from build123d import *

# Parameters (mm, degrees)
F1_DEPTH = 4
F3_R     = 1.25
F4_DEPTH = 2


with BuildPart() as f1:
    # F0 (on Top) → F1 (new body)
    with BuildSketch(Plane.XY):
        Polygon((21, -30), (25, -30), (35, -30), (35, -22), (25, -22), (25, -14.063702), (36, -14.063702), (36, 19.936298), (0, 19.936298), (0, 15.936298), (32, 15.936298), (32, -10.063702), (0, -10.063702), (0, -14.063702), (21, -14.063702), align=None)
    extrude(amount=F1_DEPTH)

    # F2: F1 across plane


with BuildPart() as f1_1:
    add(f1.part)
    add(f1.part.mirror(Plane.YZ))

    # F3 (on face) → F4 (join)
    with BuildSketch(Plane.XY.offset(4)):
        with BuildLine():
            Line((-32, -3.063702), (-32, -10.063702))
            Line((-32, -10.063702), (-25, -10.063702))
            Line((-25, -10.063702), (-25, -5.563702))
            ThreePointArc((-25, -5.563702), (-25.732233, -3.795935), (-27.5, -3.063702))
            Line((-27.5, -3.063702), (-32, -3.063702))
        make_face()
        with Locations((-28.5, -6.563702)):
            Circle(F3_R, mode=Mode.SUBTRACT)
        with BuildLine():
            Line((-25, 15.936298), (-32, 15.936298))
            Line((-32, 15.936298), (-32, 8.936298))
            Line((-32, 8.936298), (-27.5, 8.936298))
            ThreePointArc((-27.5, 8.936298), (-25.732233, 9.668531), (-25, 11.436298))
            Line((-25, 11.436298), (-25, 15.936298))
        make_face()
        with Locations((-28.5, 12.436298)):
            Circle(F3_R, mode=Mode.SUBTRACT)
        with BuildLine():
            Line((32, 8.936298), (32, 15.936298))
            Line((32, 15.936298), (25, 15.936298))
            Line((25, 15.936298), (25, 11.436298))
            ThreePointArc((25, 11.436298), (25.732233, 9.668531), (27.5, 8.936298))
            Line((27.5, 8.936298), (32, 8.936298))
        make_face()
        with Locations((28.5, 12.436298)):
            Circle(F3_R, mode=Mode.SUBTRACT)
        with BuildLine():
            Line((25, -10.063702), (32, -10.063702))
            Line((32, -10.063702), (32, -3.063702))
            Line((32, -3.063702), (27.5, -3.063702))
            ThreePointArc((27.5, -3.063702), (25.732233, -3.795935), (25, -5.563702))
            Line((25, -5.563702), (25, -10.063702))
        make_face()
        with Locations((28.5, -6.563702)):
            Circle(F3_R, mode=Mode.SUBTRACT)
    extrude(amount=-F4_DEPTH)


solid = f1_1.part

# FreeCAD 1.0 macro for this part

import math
import FreeCAD as App
import Part
import Sketcher

doc = App.newDocument("Part")
body = doc.addObject("PartDesign::Body", "Body")

sketch1 = body.newObject("Sketcher::SketchObject", "Sketch")
sketch1.AttachmentSupport = (doc.getObject("XY_Plane"), [""])
sketch1.MapMode = "FlatFace"
sketch1.addGeometry(Part.LineSegment(App.Vector(21, -30, 0), App.Vector(35, -30, 0)), False)
sketch1.addGeometry(Part.LineSegment(App.Vector(35, -30, 0), App.Vector(35, -22, 0)), False)
sketch1.addGeometry(Part.LineSegment(App.Vector(35, -22, 0), App.Vector(25, -22, 0)), False)
sketch1.addGeometry(Part.LineSegment(App.Vector(25, -22, 0), App.Vector(25, -14.1, 0)), False)
sketch1.addGeometry(Part.LineSegment(App.Vector(25, -14.1, 0), App.Vector(36, -14.1, 0)), False)
sketch1.addGeometry(Part.LineSegment(App.Vector(36, -14.1, 0), App.Vector(36, 19.9, 0)), False)
sketch1.addGeometry(Part.LineSegment(App.Vector(36, 19.9, 0), App.Vector(0, 19.9, 0)), False)
sketch1.addGeometry(Part.LineSegment(App.Vector(0, 19.9, 0), App.Vector(0, 15.9, 0)), False)
sketch1.addGeometry(Part.LineSegment(App.Vector(0, 15.9, 0), App.Vector(32, 15.9, 0)), False)
sketch1.addGeometry(Part.LineSegment(App.Vector(32, 15.9, 0), App.Vector(32, -10.1, 0)), False)
sketch1.addGeometry(Part.LineSegment(App.Vector(32, -10.1, 0), App.Vector(0, -10.1, 0)), False)
sketch1.addGeometry(Part.LineSegment(App.Vector(0, -10.1, 0), App.Vector(0, -14.1, 0)), False)
sketch1.addGeometry(Part.LineSegment(App.Vector(0, -14.1, 0), App.Vector(21, -14.1, 0)), False)
sketch1.addGeometry(Part.LineSegment(App.Vector(21, -14.1, 0), App.Vector(21, -30, 0)), False)
sketch1.addConstraint(Sketcher.Constraint("Coincident", 0, 2, 1, 1))
sketch1.addConstraint(Sketcher.Constraint("Coincident", 1, 2, 2, 1))
sketch1.addConstraint(Sketcher.Constraint("Coincident", 2, 2, 3, 1))
sketch1.addConstraint(Sketcher.Constraint("Coincident", 3, 2, 4, 1))
sketch1.addConstraint(Sketcher.Constraint("Coincident", 4, 2, 5, 1))
sketch1.addConstraint(Sketcher.Constraint("Coincident", 5, 2, 6, 1))
sketch1.addConstraint(Sketcher.Constraint("Coincident", 6, 2, 7, 1))
sketch1.addConstraint(Sketcher.Constraint("Coincident", 7, 2, 8, 1))
sketch1.addConstraint(Sketcher.Constraint("Coincident", 8, 2, 9, 1))
sketch1.addConstraint(Sketcher.Constraint("Coincident", 9, 2, 10, 1))
sketch1.addConstraint(Sketcher.Constraint("Coincident", 10, 2, 11, 1))
sketch1.addConstraint(Sketcher.Constraint("Coincident", 11, 2, 12, 1))
sketch1.addConstraint(Sketcher.Constraint("Coincident", 12, 2, 13, 1))
sketch1.addConstraint(Sketcher.Constraint("Coincident", 13, 2, 0, 1))
sketch1.addConstraint(Sketcher.Constraint("Horizontal", 0))
sketch1.addConstraint(Sketcher.Constraint("Vertical", 1))
sketch1.addConstraint(Sketcher.Constraint("Horizontal", 2))
sketch1.addConstraint(Sketcher.Constraint("Vertical", 3))
sketch1.addConstraint(Sketcher.Constraint("Horizontal", 4))
sketch1.addConstraint(Sketcher.Constraint("Vertical", 5))
sketch1.addConstraint(Sketcher.Constraint("Horizontal", 6))
sketch1.addConstraint(Sketcher.Constraint("Vertical", 7))
sketch1.addConstraint(Sketcher.Constraint("Horizontal", 8))
sketch1.addConstraint(Sketcher.Constraint("Vertical", 9))
sketch1.addConstraint(Sketcher.Constraint("Horizontal", 10))
sketch1.addConstraint(Sketcher.Constraint("Vertical", 11))
sketch1.addConstraint(Sketcher.Constraint("Horizontal", 12))
sketch1.addConstraint(Sketcher.Constraint("Vertical", 13))
sketch1.addConstraint(Sketcher.Constraint("PointOnObject", 6, 2, -2))
sketch1.addConstraint(Sketcher.Constraint("PointOnObject", 10, 2, -2))
sketch1.addConstraint(Sketcher.Constraint("Horizontal", 4, 2, 11, 2))
sketch1.addConstraint(Sketcher.Constraint("Equal", 7, 11))
sketch1.addConstraint(Sketcher.Constraint("DistanceX", 0, 1, 0, 2, 14.0))
sketch1.addConstraint(Sketcher.Constraint("DistanceX", 2, 2, 2, 1, 10.0))
sketch1.addConstraint(Sketcher.Constraint("DistanceX", 4, 1, 4, 2, 11.0))
sketch1.addConstraint(Sketcher.Constraint("DistanceX", 6, 2, 6, 1, 36.0))
sketch1.addConstraint(Sketcher.Constraint("DistanceX", 8, 1, 8, 2, 32.0))
sketch1.addConstraint(Sketcher.Constraint("DistanceY", 1, 1, 1, 2, 8.0))
sketch1.addConstraint(Sketcher.Constraint("DistanceY", 5, 1, 5, 2, 34.0))
sketch1.addConstraint(Sketcher.Constraint("DistanceY", 7, 2, 7, 1, 4.0))
sketch1.addConstraint(Sketcher.Constraint("DistanceY", 0, 2, -1, 1, 30.0))
sketch1.addConstraint(Sketcher.Constraint("DistanceY", 3, 1, 3, 2, 7.936298))
pad1 = body.newObject("PartDesign::Pad", "Pad")
pad1.Profile = sketch1
pad1.Length = 4
body2 = doc.addObject("PartDesign::Body", "Body001")
doc.recompute()

body2.BaseFeature = body
doc.recompute()

mirroring = doc.addObject("Part::Mirroring", "Mirroring")
mirroring.Source = body
mirroring.Base = App.Vector(0, 0, 0)
mirroring.Normal = App.Vector(1, 0, 0)
body3 = doc.addObject("PartDesign::Body", "Body002")
body3.BaseFeature = mirroring
boolean = body2.newObject("PartDesign::Boolean", "Boolean")
boolean.Type = "Fuse"
boolean.addObjects([body3])
doc.recompute()

sketch2 = body2.newObject("Sketcher::SketchObject", "Sketch001")
sketch2.AttachmentSupport = (doc.getObject("XY_Plane001"), [""])
sketch2.MapMode = "FlatFace"
sketch2.AttachmentOffset = App.Placement(App.Vector(0, 0, 4), App.Rotation())
sketch2.addGeometry(Part.LineSegment(App.Vector(-32, -3.1, 0), App.Vector(-32, -10.1, 0)), False)
sketch2.addGeometry(Part.LineSegment(App.Vector(-32, -10.1, 0), App.Vector(-25, -10.1, 0)), False)
sketch2.addGeometry(Part.LineSegment(App.Vector(-25, -10.1, 0), App.Vector(-25, -5.6, 0)), False)
sketch2.addGeometry(Part.ArcOfCircle(Part.Circle(App.Vector(-27.5, -5.6, 0), App.Vector(0, 0, 1), 2.5), math.radians(0), math.radians(90)), False)
sketch2.addGeometry(Part.LineSegment(App.Vector(-27.5, -3.1, 0), App.Vector(-32, -3.1, 0)), False)
sketch2.addGeometry(Part.Circle(App.Vector(-28.5, -6.6, 0), App.Vector(0, 0, 1), 1.2), False)
sketch2.addGeometry(Part.LineSegment(App.Vector(-25, 15.9, 0), App.Vector(-32, 15.9, 0)), False)
sketch2.addGeometry(Part.LineSegment(App.Vector(-32, 15.9, 0), App.Vector(-32, 8.9, 0)), False)
sketch2.addGeometry(Part.LineSegment(App.Vector(-32, 8.9, 0), App.Vector(-27.5, 8.9, 0)), False)
sketch2.addGeometry(Part.ArcOfCircle(Part.Circle(App.Vector(-27.5, 11.4, 0), App.Vector(0, 0, 1), 2.5), math.radians(-90), math.radians(0)), False)
sketch2.addGeometry(Part.LineSegment(App.Vector(-25, 11.4, 0), App.Vector(-25, 15.9, 0)), False)
sketch2.addGeometry(Part.Circle(App.Vector(-28.5, 12.4, 0), App.Vector(0, 0, 1), 1.2), False)
sketch2.addGeometry(Part.LineSegment(App.Vector(32, 8.9, 0), App.Vector(32, 15.9, 0)), False)
sketch2.addGeometry(Part.LineSegment(App.Vector(32, 15.9, 0), App.Vector(25, 15.9, 0)), False)
sketch2.addGeometry(Part.LineSegment(App.Vector(25, 15.9, 0), App.Vector(25, 11.4, 0)), False)
sketch2.addGeometry(Part.ArcOfCircle(Part.Circle(App.Vector(27.5, 11.4, 0), App.Vector(0, 0, 1), 2.5), math.radians(180), math.radians(270)), False)
sketch2.addGeometry(Part.LineSegment(App.Vector(27.5, 8.9, 0), App.Vector(32, 8.9, 0)), False)
sketch2.addGeometry(Part.Circle(App.Vector(28.5, 12.4, 0), App.Vector(0, 0, 1), 1.2), False)
sketch2.addGeometry(Part.LineSegment(App.Vector(25, -10.1, 0), App.Vector(32, -10.1, 0)), False)
sketch2.addGeometry(Part.LineSegment(App.Vector(32, -10.1, 0), App.Vector(32, -3.1, 0)), False)
sketch2.addGeometry(Part.LineSegment(App.Vector(32, -3.1, 0), App.Vector(27.5, -3.1, 0)), False)
sketch2.addGeometry(Part.ArcOfCircle(Part.Circle(App.Vector(27.5, -5.6, 0), App.Vector(0, 0, 1), 2.5), math.radians(90), math.radians(180)), False)
sketch2.addGeometry(Part.LineSegment(App.Vector(25, -5.6, 0), App.Vector(25, -10.1, 0)), False)
sketch2.addGeometry(Part.Circle(App.Vector(28.5, -6.6, 0), App.Vector(0, 0, 1), 1.2), False)
sketch2.addConstraint(Sketcher.Constraint("Coincident", 0, 2, 1, 1))
sketch2.addConstraint(Sketcher.Constraint("Coincident", 1, 2, 2, 1))
sketch2.addConstraint(Sketcher.Constraint("Tangent", 2, 2, 3, 1))
sketch2.addConstraint(Sketcher.Constraint("Tangent", 3, 2, 4, 1))
sketch2.addConstraint(Sketcher.Constraint("Coincident", 4, 2, 0, 1))
sketch2.addConstraint(Sketcher.Constraint("Coincident", 6, 2, 7, 1))
sketch2.addConstraint(Sketcher.Constraint("Coincident", 7, 2, 8, 1))
sketch2.addConstraint(Sketcher.Constraint("Tangent", 8, 2, 9, 1))
sketch2.addConstraint(Sketcher.Constraint("Tangent", 9, 2, 10, 1))
sketch2.addConstraint(Sketcher.Constraint("Coincident", 10, 2, 6, 1))
sketch2.addConstraint(Sketcher.Constraint("Coincident", 12, 2, 13, 1))
sketch2.addConstraint(Sketcher.Constraint("Coincident", 13, 2, 14, 1))
sketch2.addConstraint(Sketcher.Constraint("Tangent", 14, 2, 15, 1))
sketch2.addConstraint(Sketcher.Constraint("Tangent", 15, 2, 16, 1))
sketch2.addConstraint(Sketcher.Constraint("Coincident", 16, 2, 12, 1))
sketch2.addConstraint(Sketcher.Constraint("Coincident", 18, 2, 19, 1))
sketch2.addConstraint(Sketcher.Constraint("Coincident", 19, 2, 20, 1))
sketch2.addConstraint(Sketcher.Constraint("Tangent", 20, 2, 21, 1))
sketch2.addConstraint(Sketcher.Constraint("Tangent", 21, 2, 22, 1))
sketch2.addConstraint(Sketcher.Constraint("Coincident", 22, 2, 18, 1))
sketch2.addConstraint(Sketcher.Constraint("Vertical", 0))
sketch2.addConstraint(Sketcher.Constraint("Horizontal", 1))
sketch2.addConstraint(Sketcher.Constraint("Vertical", 2))
sketch2.addConstraint(Sketcher.Constraint("Horizontal", 4))
sketch2.addConstraint(Sketcher.Constraint("Horizontal", 6))
sketch2.addConstraint(Sketcher.Constraint("Vertical", 7))
sketch2.addConstraint(Sketcher.Constraint("Horizontal", 8))
sketch2.addConstraint(Sketcher.Constraint("Vertical", 10))
sketch2.addConstraint(Sketcher.Constraint("Vertical", 12))
sketch2.addConstraint(Sketcher.Constraint("Horizontal", 13))
sketch2.addConstraint(Sketcher.Constraint("Vertical", 14))
sketch2.addConstraint(Sketcher.Constraint("Horizontal", 16))
sketch2.addConstraint(Sketcher.Constraint("Horizontal", 18))
sketch2.addConstraint(Sketcher.Constraint("Vertical", 19))
sketch2.addConstraint(Sketcher.Constraint("Horizontal", 20))
sketch2.addConstraint(Sketcher.Constraint("Vertical", 22))
sketch2.addConstraint(Sketcher.Constraint("Equal", 3, 9))
sketch2.addConstraint(Sketcher.Constraint("Equal", 5, 11))
sketch2.addConstraint(Sketcher.Constraint("Equal", 9, 15))
sketch2.addConstraint(Sketcher.Constraint("Equal", 11, 17))
sketch2.addConstraint(Sketcher.Constraint("Equal", 15, 21))
sketch2.addConstraint(Sketcher.Constraint("Equal", 17, 23))
sketch2.addConstraint(Sketcher.Constraint("Symmetric", 9, 3, 15, 3, -2))
sketch2.addConstraint(Sketcher.Constraint("Symmetric", 11, 3, 17, 3, -2))
sketch2.addConstraint(Sketcher.Constraint("Symmetric", 3, 3, 21, 3, -2))
sketch2.addConstraint(Sketcher.Constraint("Symmetric", 5, 3, 23, 3, -2))
sketch2.addConstraint(Sketcher.Constraint("Symmetric", 6, 2, 12, 2, -2))
sketch2.addConstraint(Sketcher.Constraint("Symmetric", 0, 2, 18, 2, -2))
sketch2.addConstraint(Sketcher.Constraint("Vertical", 3, 3, 9, 3))
sketch2.addConstraint(Sketcher.Constraint("Vertical", 5, 3, 11, 3))
sketch2.addConstraint(Sketcher.Constraint("Vertical", 4, 2, 6, 2))
sketch2.addConstraint(Sketcher.Constraint("Equal", 18, 0))
sketch2.addConstraint(Sketcher.Constraint("Equal", 0, 7))
sketch2.addConstraint(Sketcher.Constraint("Diameter", 5, 2.5))
sketch2.addConstraint(Sketcher.Constraint("Radius", 3, 2.5))
sketch2.addConstraint(Sketcher.Constraint("DistanceX", 1, 1, 1, 2, 7.0))
sketch2.addConstraint(Sketcher.Constraint("DistanceX", 0, 2, -1, 1, 32.0))
sketch2.addConstraint(Sketcher.Constraint("DistanceX", 5, 3, 3, 3, 1.0))
sketch2.addConstraint(Sketcher.Constraint("DistanceY", 5, 3, 3, 3, 1.0))
sketch2.addConstraint(Sketcher.Constraint("DistanceY", 3, 3, 9, 3, 17.0))
sketch2.addConstraint(Sketcher.Constraint("DistanceY", 9, 3, 11, 3, 1.0))
sketch2.addConstraint(Sketcher.Constraint("DistanceY", 3, 3, -1, 1, 5.563702))
pad2 = body2.newObject("PartDesign::Pad", "Pad001")
pad2.Profile = sketch2
pad2.Length = 2
pad2.Reversed = True
mirroring.Visibility = False

doc.recompute()
